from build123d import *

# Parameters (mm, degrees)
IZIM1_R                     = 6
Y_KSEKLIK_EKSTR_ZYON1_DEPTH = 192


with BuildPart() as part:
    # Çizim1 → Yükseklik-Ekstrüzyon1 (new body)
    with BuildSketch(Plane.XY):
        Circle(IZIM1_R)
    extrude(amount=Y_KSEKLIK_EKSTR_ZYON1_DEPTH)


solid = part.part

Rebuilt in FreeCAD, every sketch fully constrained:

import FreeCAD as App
import Part
import Sketcher
from FreeCAD import Vector
Q = App.Units.Quantity

doc = App.newDocument("Part")
body = doc.addObject("PartDesign::Body", "Body")

sketch1 = doc.addObject("Sketcher::SketchObject", "Sketch")
body.addObject(sketch1)
sketch1.AttachmentSupport = (doc.XY_Plane, [""])
sketch1.MapMode = "FlatFace"
sketch1.addGeometry(Part.Circle(Vector(0, 0, 0), Vector(0, 0, 1), 6), False)
sketch1.addConstraint([
    Sketcher.Constraint("Coincident", 0, 3, -1, 1),
    Sketcher.Constraint("Diameter", 0, Q("12 mm")),
])
pad1 = doc.addObject("PartDesign::Pad", "Pad")
body.addObject(pad1)
pad1.Profile = sketch1
pad1.Length = 192

doc.recompute()
